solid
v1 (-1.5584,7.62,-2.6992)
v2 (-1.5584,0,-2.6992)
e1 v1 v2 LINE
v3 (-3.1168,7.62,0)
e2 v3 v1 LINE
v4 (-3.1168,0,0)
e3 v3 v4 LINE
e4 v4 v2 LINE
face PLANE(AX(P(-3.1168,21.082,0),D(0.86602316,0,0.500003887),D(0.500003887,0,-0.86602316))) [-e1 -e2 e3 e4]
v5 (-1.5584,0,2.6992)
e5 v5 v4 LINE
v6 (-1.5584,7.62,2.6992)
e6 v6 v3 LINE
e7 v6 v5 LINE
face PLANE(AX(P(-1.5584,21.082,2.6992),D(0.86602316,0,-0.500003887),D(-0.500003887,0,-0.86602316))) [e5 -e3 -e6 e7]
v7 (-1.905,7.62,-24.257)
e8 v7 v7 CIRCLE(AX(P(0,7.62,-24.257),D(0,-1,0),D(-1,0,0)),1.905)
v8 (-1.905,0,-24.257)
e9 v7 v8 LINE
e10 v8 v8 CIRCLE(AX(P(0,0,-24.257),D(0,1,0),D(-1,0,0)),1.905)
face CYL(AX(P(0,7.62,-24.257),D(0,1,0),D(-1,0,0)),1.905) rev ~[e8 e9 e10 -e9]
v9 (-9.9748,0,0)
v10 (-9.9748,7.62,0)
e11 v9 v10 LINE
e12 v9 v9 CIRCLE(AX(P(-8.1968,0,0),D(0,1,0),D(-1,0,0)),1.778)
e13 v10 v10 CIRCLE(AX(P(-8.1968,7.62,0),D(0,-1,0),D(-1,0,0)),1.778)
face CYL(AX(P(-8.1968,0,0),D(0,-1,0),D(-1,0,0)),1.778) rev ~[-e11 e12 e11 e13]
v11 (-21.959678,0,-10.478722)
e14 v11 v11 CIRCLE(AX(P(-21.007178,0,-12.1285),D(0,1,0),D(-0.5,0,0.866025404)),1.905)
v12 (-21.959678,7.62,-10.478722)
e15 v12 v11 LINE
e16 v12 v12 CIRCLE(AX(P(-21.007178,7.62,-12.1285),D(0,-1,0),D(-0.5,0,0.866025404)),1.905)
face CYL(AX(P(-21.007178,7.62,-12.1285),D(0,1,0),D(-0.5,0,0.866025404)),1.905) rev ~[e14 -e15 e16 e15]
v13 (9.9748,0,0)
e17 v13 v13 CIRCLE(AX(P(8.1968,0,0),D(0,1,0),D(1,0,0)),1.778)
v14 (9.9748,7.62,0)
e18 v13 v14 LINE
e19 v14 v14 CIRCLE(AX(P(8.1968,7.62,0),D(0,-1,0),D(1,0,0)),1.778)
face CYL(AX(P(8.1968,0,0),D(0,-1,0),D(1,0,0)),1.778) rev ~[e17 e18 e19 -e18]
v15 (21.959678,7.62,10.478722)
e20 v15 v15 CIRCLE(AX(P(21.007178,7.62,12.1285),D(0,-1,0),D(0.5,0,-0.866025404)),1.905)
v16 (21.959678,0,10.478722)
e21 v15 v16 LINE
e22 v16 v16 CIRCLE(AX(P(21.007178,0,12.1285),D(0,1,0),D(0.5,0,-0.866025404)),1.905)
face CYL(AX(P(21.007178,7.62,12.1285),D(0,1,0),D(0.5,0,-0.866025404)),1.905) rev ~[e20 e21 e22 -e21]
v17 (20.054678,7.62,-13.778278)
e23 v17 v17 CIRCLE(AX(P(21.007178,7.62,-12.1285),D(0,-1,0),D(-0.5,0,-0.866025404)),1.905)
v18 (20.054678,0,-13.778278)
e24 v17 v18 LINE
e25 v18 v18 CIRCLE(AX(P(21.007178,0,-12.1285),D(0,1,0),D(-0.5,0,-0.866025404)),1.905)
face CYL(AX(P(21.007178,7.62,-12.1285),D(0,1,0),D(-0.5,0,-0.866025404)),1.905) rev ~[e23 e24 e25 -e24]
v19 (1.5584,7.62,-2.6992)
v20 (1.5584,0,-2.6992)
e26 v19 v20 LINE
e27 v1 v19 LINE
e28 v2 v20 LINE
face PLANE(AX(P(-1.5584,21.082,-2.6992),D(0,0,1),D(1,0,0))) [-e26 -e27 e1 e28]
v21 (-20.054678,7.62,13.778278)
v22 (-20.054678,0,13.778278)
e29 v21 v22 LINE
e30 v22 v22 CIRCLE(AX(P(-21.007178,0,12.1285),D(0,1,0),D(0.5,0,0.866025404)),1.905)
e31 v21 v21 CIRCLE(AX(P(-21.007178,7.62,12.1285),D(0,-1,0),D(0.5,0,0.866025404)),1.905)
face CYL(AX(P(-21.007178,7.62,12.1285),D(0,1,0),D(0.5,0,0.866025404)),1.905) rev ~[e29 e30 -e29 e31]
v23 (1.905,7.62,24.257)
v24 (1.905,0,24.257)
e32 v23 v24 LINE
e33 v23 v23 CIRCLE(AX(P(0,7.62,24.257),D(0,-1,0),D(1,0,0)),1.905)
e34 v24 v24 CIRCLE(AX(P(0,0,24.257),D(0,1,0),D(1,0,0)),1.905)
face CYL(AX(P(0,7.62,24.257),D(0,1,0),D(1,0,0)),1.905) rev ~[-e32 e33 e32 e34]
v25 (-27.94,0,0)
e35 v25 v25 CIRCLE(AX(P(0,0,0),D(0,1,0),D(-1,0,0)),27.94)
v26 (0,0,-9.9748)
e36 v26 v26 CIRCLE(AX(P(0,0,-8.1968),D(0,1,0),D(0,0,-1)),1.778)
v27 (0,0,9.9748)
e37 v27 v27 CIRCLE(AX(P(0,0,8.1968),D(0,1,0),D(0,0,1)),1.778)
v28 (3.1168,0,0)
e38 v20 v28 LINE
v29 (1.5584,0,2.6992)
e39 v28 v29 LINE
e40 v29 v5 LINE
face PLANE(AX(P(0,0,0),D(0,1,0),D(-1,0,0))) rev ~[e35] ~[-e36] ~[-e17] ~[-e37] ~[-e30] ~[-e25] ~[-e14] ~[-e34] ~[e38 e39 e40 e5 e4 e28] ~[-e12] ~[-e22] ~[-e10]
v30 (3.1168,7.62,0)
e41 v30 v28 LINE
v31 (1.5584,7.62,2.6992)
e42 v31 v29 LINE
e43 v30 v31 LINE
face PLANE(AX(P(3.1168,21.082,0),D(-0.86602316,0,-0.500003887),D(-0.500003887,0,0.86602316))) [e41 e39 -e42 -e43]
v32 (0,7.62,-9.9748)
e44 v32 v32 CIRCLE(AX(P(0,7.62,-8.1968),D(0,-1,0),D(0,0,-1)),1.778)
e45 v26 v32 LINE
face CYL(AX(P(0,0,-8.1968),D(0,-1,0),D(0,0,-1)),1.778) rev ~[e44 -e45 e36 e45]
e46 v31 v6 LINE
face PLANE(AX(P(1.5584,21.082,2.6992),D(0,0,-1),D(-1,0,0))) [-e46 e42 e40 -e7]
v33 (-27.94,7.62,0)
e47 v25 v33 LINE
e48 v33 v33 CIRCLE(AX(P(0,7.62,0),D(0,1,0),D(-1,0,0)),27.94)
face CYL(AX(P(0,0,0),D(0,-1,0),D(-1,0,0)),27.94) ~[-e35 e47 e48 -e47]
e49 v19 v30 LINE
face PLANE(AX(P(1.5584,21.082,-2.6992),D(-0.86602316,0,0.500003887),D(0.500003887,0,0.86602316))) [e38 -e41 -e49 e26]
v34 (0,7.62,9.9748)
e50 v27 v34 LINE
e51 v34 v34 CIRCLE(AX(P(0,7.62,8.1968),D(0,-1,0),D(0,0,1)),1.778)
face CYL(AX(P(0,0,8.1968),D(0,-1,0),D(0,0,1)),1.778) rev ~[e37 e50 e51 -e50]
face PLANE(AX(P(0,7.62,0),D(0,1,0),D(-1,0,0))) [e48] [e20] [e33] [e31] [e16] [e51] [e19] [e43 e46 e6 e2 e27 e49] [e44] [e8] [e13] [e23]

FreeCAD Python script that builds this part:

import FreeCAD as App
import Part
import Sketcher
Q = App.Units.Quantity


def add_polygon(sketch, points):
    """Adds a closed chain of lines whose ends are joined by coincident constraints."""
    first, n = sketch.GeometryCount, len(points)
    for a, b in zip(points, points[1:] + points[:1]):
        sketch.addGeometry(Part.LineSegment(App.Vector(*a, 0), App.Vector(*b, 0)), False)
    for i in range(n):
        sketch.addConstraint(Sketcher.Constraint("Coincident", first + i, 2, first + (i + 1) % n, 1))

doc = App.newDocument("Part")
body = doc.addObject("PartDesign::Body", "Body")

# Sketch on XZ plane
sketch1 = body.newObject("Sketcher::SketchObject", "Sketch")
sketch1.AttachmentSupport = (doc.getObject("XZ_Plane"), [""])
sketch1.MapMode = "FlatFace"
sketch1.addGeometry(Part.Circle(App.Vector(0, 0, 0), App.Vector(0, 0, 1), 28), False)
sketch1.addConstraint([
    Sketcher.Constraint("Coincident", 0, 3, -1, 1),
    Sketcher.Constraint("Diameter", 0, Q("2.2 in")),
])
pad1 = body.newObject("PartDesign::Pad", "Pad")
pad1.Profile = sketch1
pad1.Length = Q("0.3 in")
pad1.Reversed = True

# Sketch on XZ plane
sketch2 = body.newObject("Sketcher::SketchObject", "Sketch001")
sketch2.AttachmentSupport = (doc.getObject("XZ_Plane"), [""])
sketch2.MapMode = "FlatFace"
sketch2.AttachmentOffset = App.Placement(App.Vector(0, 0, -0.83 * 25.4), App.Rotation())
add_polygon(sketch2, [(-1.6, -2.7), (-3.1, 0), (-1.6, 2.7), (1.6, 2.7), (3.1, 0), (1.6, -2.7)])  # lines 0-5
sketch2.addConstraint([
    Sketcher.Constraint("Horizontal", 2),
    Sketcher.Constraint("Horizontal", 5),
    Sketcher.Constraint("Symmetric", 0, 2, 3, 2, -1, 1),
    Sketcher.Constraint("Symmetric", 1, 2, 4, 2, -1, 1),
    Sketcher.Constraint("PointOnObject", 0, 2, -1),
    Sketcher.Constraint("Parallel", 0, 3),
    Sketcher.Constraint("Vertical", 2, 2, 4, 2),
    Sketcher.Constraint("Angle", 0, Q("120.0003 deg")),
    Sketcher.Constraint("DistanceX", 2, 1, 2, 2, Q("0.1227 in")),
    Sketcher.Constraint("Distance", 0, Q("0.1227 in")),
])
pocket1 = body.newObject("PartDesign::Pocket", "Pocket")
pocket1.Profile = sketch2
pocket1.Length = Q("1 in")
pocket1.Reversed = True

# Sketch on XZ plane
sketch3 = body.newObject("Sketcher::SketchObject", "Sketch002")
sketch3.AttachmentSupport = (doc.getObject("XZ_Plane"), [""])
sketch3.MapMode = "FlatFace"
sketch3.AttachmentOffset = App.Placement(App.Vector(0, 0, -0.3 * 25.4), App.Rotation())
sketch3.addGeometry(Part.Circle(App.Vector(0, 24.3, 0), App.Vector(0, 0, 1), 1.9), False)
sketch3.addConstraint([
    Sketcher.Constraint("PointOnObject", 0, 3, -2),
    Sketcher.Constraint("Diameter", 0, Q("0.15 in")),
    Sketcher.Constraint("DistanceY", -1, 1, 0, 3, Q("0.955 in")),
])
pocket2 = body.newObject("PartDesign::Pocket", "Pocket001")
pocket2.Profile = sketch3
pocket2.Length = Q("1 in")
pocket2.Reversed = True
doc.recompute()

polarpattern = body.newObject("PartDesign::PolarPattern", "PolarPattern")
polarpattern.Originals = [pocket2]
polarpattern.Axis = (doc.getObject("Y_Axis"), [""])
polarpattern.Angle = 360
polarpattern.Occurrences = 6
body.Tip = polarpattern

# Sketch on XZ plane
sketch4 = body.newObject("Sketcher::SketchObject", "Sketch003")
sketch4.AttachmentSupport = (doc.getObject("XZ_Plane"), [""])
sketch4.MapMode = "FlatFace"
sketch4.addGeometry(Part.Circle(App.Vector(8.2, 0, 0), App.Vector(0, 0, 1), 1.8), False)
sketch4.addConstraint([
    Sketcher.Constraint("PointOnObject", 0, 3, -1),
    Sketcher.Constraint("Diameter", 0, Q("0.14 in")),
    Sketcher.Constraint("DistanceX", -1, 1, 0, 3, Q("0.3227 in")),
])
pocket3 = body.newObject("PartDesign::Pocket", "Pocket002")
pocket3.Profile = sketch4
pocket3.Length = Q("1 in")
doc.recompute()

polarpattern2 = body.newObject("PartDesign::PolarPattern", "PolarPattern001")
polarpattern2.Originals = [pocket3]
polarpattern2.Axis = (doc.getObject("Y_Axis"), [""])
polarpattern2.Angle = 360
polarpattern2.Occurrences = 4
body.Tip = polarpattern2

doc.recompute()
